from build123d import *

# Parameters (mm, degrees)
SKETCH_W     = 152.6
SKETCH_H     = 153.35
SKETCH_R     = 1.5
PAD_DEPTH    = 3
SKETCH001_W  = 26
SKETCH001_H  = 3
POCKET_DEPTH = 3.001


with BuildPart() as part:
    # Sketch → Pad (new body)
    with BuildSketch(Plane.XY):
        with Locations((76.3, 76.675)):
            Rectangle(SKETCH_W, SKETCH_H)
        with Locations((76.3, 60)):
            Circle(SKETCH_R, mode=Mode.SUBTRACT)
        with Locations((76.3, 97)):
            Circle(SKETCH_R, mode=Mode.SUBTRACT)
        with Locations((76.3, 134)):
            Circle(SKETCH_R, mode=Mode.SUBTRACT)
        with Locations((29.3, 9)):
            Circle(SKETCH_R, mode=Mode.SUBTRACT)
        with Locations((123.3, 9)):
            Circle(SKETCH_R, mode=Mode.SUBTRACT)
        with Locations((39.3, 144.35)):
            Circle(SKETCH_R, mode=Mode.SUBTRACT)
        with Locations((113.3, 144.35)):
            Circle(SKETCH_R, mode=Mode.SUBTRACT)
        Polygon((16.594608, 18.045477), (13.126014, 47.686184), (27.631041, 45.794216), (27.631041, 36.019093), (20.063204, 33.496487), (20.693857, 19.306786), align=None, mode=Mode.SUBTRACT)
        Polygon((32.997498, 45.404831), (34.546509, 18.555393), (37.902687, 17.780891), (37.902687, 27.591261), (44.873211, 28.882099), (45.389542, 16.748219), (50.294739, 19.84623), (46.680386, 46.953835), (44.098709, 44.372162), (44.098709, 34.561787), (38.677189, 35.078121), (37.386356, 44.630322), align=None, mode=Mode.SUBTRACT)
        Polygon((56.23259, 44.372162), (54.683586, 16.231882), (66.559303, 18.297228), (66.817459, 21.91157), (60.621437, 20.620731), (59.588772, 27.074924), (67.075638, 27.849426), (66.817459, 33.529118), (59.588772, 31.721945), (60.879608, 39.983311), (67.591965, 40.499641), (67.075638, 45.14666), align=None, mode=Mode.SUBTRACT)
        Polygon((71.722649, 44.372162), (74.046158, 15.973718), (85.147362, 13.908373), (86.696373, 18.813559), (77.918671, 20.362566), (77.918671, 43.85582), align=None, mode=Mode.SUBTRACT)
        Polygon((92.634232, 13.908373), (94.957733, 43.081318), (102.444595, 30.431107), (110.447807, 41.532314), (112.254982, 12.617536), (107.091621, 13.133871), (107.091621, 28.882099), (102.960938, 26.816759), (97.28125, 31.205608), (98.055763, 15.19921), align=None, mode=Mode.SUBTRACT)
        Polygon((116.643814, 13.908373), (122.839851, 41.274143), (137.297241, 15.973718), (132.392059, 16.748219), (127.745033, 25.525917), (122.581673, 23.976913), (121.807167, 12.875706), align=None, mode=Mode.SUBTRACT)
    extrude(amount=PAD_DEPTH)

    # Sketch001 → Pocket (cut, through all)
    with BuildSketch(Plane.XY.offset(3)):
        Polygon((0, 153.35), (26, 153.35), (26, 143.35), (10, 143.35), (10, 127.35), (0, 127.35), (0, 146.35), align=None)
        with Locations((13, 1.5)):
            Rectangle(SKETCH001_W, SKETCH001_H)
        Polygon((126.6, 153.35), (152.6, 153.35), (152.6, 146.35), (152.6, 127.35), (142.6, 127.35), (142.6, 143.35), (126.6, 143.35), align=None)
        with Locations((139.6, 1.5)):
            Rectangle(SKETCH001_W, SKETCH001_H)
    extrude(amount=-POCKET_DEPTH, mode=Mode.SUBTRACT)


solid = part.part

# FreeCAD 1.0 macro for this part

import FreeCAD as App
import Part
import Sketcher
from FreeCAD import Vector
Q = App.Units.Quantity

doc = App.newDocument("Part")
params = doc.addObject("Spreadsheet::Sheet", "Params")
for row, (alias, value) in enumerate([
    ("sketch1_diameter", "3 mm"),
    ("sketch1_diameter2", "3 mm"),
    ("sketch1_diameter3", "3 mm"),
    ("sketch1_diameter4", "3 mm"),
    ("sketch1_diameter5", "3 mm"),
    ("pad1_length", "3 mm"),
    ("sketch2_width", "26 mm"),
    ("sketch2_width2", "10 mm"),
    ("sketch2_height", "3 mm"),
], start=1):
    params.set(f"A{row}", alias)
    params.set(f"B{row}", "=" + value)
    params.setAlias(f"B{row}", alias)

body = doc.addObject("PartDesign::Body", "Body")

# Sketch on XY plane
sketch1 = body.newObject("Sketcher::SketchObject", "Sketch")
sketch1.AttachmentSupport = (doc.getObject("XY_Plane"), [""])
sketch1.MapMode = "FlatFace"
sketch1.addGeometry([
    Part.LineSegment(Vector(0, 153.35, 0), Vector(0, 0, 0)),  # 0
    Part.LineSegment(Vector(0, 0, 0), Vector(152.6, 0, 0)),  # 1
    Part.LineSegment(Vector(152.6, 0, 0), Vector(152.6, 153.35, 0)),  # 2
    Part.LineSegment(Vector(152.6, 153.35, 0), Vector(0, 153.35, 0)),  # 3
    Part.Circle(Vector(29.3, 9, 0), Vector(0, 0, 1), 1.5),  # 4
    Part.LineSegment(Vector(20.693857, 19.306786, 0), Vector(16.594608, 18.045477, 0)),  # 5
    Part.LineSegment(Vector(16.594608, 18.045477, 0), Vector(13.126014, 47.686184, 0)),  # 6
    Part.LineSegment(Vector(13.126014, 47.686184, 0), Vector(27.631041, 45.794216, 0)),  # 7
    Part.LineSegment(Vector(27.631041, 45.794216, 0), Vector(27.631041, 36.019093, 0)),  # 8
    Part.LineSegment(Vector(27.631041, 36.019093, 0), Vector(20.063204, 33.496487, 0)),  # 9
    Part.LineSegment(Vector(20.063204, 33.496487, 0), Vector(20.693857, 19.306786, 0)),  # 10
    Part.LineSegment(Vector(34.546509, 18.555393, 0), Vector(32.997498, 45.404831, 0)),  # 11
    Part.LineSegment(Vector(32.997498, 45.404831, 0), Vector(37.386356, 44.630322, 0)),  # 12
    Part.LineSegment(Vector(37.386356, 44.630322, 0), Vector(38.677189, 35.078121, 0)),  # 13
    Part.LineSegment(Vector(38.677189, 35.078121, 0), Vector(44.098709, 34.561787, 0)),  # 14
    Part.LineSegment(Vector(44.098709, 34.561787, 0), Vector(44.098709, 44.372162, 0)),  # 15
    Part.LineSegment(Vector(44.098709, 44.372162, 0), Vector(46.680386, 46.953835, 0)),  # 16
    Part.LineSegment(Vector(46.680386, 46.953835, 0), Vector(50.294739, 19.84623, 0)),  # 17
    Part.LineSegment(Vector(50.294739, 19.84623, 0), Vector(45.389542, 16.748219, 0)),  # 18
    Part.LineSegment(Vector(45.389542, 16.748219, 0), Vector(44.873211, 28.882099, 0)),  # 19
    Part.LineSegment(Vector(44.873211, 28.882099, 0), Vector(37.902687, 27.591261, 0)),  # 20
    Part.LineSegment(Vector(37.902687, 27.591261, 0), Vector(37.902687, 17.780891, 0)),  # 21
    Part.LineSegment(Vector(37.902687, 17.780891, 0), Vector(34.546509, 18.555393, 0)),  # 22
    Part.LineSegment(Vector(54.683586, 16.231882, 0), Vector(56.23259, 44.372162, 0)),  # 23
    Part.LineSegment(Vector(56.23259, 44.372162, 0), Vector(67.075638, 45.14666, 0)),  # 24
    Part.LineSegment(Vector(67.075638, 45.14666, 0), Vector(67.591965, 40.499641, 0)),  # 25
    Part.LineSegment(Vector(67.591965, 40.499641, 0), Vector(60.879608, 39.983311, 0)),  # 26
    Part.LineSegment(Vector(60.879608, 39.983311, 0), Vector(59.588772, 31.721945, 0)),  # 27
    Part.LineSegment(Vector(59.588772, 31.721945, 0), Vector(66.817459, 33.529118, 0)),  # 28
    Part.LineSegment(Vector(66.817459, 33.529118, 0), Vector(67.075638, 27.849426, 0)),  # 29
    Part.LineSegment(Vector(67.075638, 27.849426, 0), Vector(59.588772, 27.074924, 0)),  # 30
    Part.LineSegment(Vector(59.588772, 27.074924, 0), Vector(60.621437, 20.620731, 0)),  # 31
    Part.LineSegment(Vector(60.621437, 20.620731, 0), Vector(66.817459, 21.91157, 0)),  # 32
    Part.LineSegment(Vector(66.817459, 21.91157, 0), Vector(66.559303, 18.297228, 0)),  # 33
    Part.LineSegment(Vector(66.559303, 18.297228, 0), Vector(54.683586, 16.231882, 0)),  # 34
    Part.LineSegment(Vector(74.046158, 15.973718, 0), Vector(71.722649, 44.372162, 0)),  # 35
    Part.LineSegment(Vector(71.722649, 44.372162, 0), Vector(77.918671, 43.85582, 0)),  # 36
    Part.LineSegment(Vector(77.918671, 43.85582, 0), Vector(77.918671, 20.362566, 0)),  # 37
    Part.LineSegment(Vector(77.918671, 20.362566, 0), Vector(86.696373, 18.813559, 0)),  # 38
    Part.LineSegment(Vector(86.696373, 18.813559, 0), Vector(85.147362, 13.908373, 0)),  # 39
    Part.LineSegment(Vector(85.147362, 13.908373, 0), Vector(74.046158, 15.973718, 0)),  # 40
    Part.LineSegment(Vector(98.055763, 15.19921, 0), Vector(92.634232, 13.908373, 0)),  # 41
    Part.LineSegment(Vector(92.634232, 13.908373, 0), Vector(94.957733, 43.081318, 0)),  # 42
    Part.LineSegment(Vector(94.957733, 43.081318, 0), Vector(102.444595, 30.431107, 0)),  # 43
    Part.LineSegment(Vector(102.444595, 30.431107, 0), Vector(110.447807, 41.532314, 0)),  # 44
    Part.LineSegment(Vector(110.447807, 41.532314, 0), Vector(112.254982, 12.617536, 0)),  # 45
    Part.LineSegment(Vector(112.254982, 12.617536, 0), Vector(107.091621, 13.133871, 0)),  # 46
    Part.LineSegment(Vector(107.091621, 13.133871, 0), Vector(107.091621, 28.882099, 0)),  # 47
    Part.LineSegment(Vector(107.091621, 28.882099, 0), Vector(102.960938, 26.816759, 0)),  # 48
    Part.LineSegment(Vector(102.960938, 26.816759, 0), Vector(97.28125, 31.205608, 0)),  # 49
    Part.LineSegment(Vector(97.28125, 31.205608, 0), Vector(98.055763, 15.19921, 0)),  # 50
    Part.Circle(Vector(123.3, 9, 0), Vector(0, 0, 1), 1.5),  # 51
    Part.LineSegment(Vector(121.807167, 12.875706, 0), Vector(116.643814, 13.908373, 0)),  # 52
    Part.LineSegment(Vector(116.643814, 13.908373, 0), Vector(122.839851, 41.274143, 0)),  # 53
    Part.LineSegment(Vector(122.839851, 41.274143, 0), Vector(137.297241, 15.973718, 0)),  # 54
    Part.LineSegment(Vector(137.297241, 15.973718, 0), Vector(132.392059, 16.748219, 0)),  # 55
    Part.LineSegment(Vector(132.392059, 16.748219, 0), Vector(127.745033, 25.525917, 0)),  # 56
    Part.LineSegment(Vector(127.745033, 25.525917, 0), Vector(122.581673, 23.976913, 0)),  # 57
    Part.LineSegment(Vector(122.581673, 23.976913, 0), Vector(121.807167, 12.875706, 0)),  # 58
    Part.Circle(Vector(76.3, 60, 0), Vector(0, 0, 1), 1.5),  # 59
    Part.Circle(Vector(39.3, 144.35, 0), Vector(0, 0, 1), 1.5),  # 60
    Part.Circle(Vector(76.3, 97, 0), Vector(0, 0, 1), 1.5),  # 61
    Part.Circle(Vector(76.3, 134, 0), Vector(0, 0, 1), 1.5),  # 62
    Part.Circle(Vector(113.3, 144.35, 0), Vector(0, 0, 1), 1.5),  # 63
], False)
sketch1.addConstraint([
    Sketcher.Constraint("Coincident", 0, 2, 1, 1),
    Sketcher.Constraint("Coincident", 1, 2, 2, 1),
    Sketcher.Constraint("Coincident", 2, 2, 3, 1),
    Sketcher.Constraint("Coincident", 3, 2, 0, 1),
    Sketcher.Constraint("Coincident", 5, 2, 6, 1),
    Sketcher.Constraint("Coincident", 6, 2, 7, 1),
    Sketcher.Constraint("Coincident", 7, 2, 8, 1),
    Sketcher.Constraint("Coincident", 8, 2, 9, 1),
    Sketcher.Constraint("Coincident", 9, 2, 10, 1),
    Sketcher.Constraint("Coincident", 10, 2, 5, 1),
    Sketcher.Constraint("Coincident", 11, 2, 12, 1),
    Sketcher.Constraint("Coincident", 12, 2, 13, 1),
    Sketcher.Constraint("Coincident", 13, 2, 14, 1),
    Sketcher.Constraint("Coincident", 14, 2, 15, 1),
    Sketcher.Constraint("Coincident", 15, 2, 16, 1),
    Sketcher.Constraint("Coincident", 16, 2, 17, 1),
    Sketcher.Constraint("Coincident", 17, 2, 18, 1),
    Sketcher.Constraint("Coincident", 18, 2, 19, 1),
    Sketcher.Constraint("Coincident", 19, 2, 20, 1),
    Sketcher.Constraint("Coincident", 20, 2, 21, 1),
    Sketcher.Constraint("Coincident", 21, 2, 22, 1),
    Sketcher.Constraint("Coincident", 22, 2, 11, 1),
    Sketcher.Constraint("Coincident", 23, 2, 24, 1),
    Sketcher.Constraint("Coincident", 24, 2, 25, 1),
    Sketcher.Constraint("Coincident", 25, 2, 26, 1),
    Sketcher.Constraint("Coincident", 26, 2, 27, 1),
    Sketcher.Constraint("Coincident", 27, 2, 28, 1),
    Sketcher.Constraint("Coincident", 28, 2, 29, 1),
    Sketcher.Constraint("Coincident", 29, 2, 30, 1),
    Sketcher.Constraint("Coincident", 30, 2, 31, 1),
    Sketcher.Constraint("Coincident", 31, 2, 32, 1),
    Sketcher.Constraint("Coincident", 32, 2, 33, 1),
    Sketcher.Constraint("Coincident", 33, 2, 34, 1),
    Sketcher.Constraint("Coincident", 34, 2, 23, 1),
    Sketcher.Constraint("Coincident", 35, 2, 36, 1),
    Sketcher.Constraint("Coincident", 36, 2, 37, 1),
    Sketcher.Constraint("Coincident", 37, 2, 38, 1),
    Sketcher.Constraint("Coincident", 38, 2, 39, 1),
    Sketcher.Constraint("Coincident", 39, 2, 40, 1),
    Sketcher.Constraint("Coincident", 40, 2, 35, 1),
    Sketcher.Constraint("Coincident", 41, 2, 42, 1),
    Sketcher.Constraint("Coincident", 42, 2, 43, 1),
    Sketcher.Constraint("Coincident", 43, 2, 44, 1),
    Sketcher.Constraint("Coincident", 44, 2, 45, 1),
    Sketcher.Constraint("Coincident", 45, 2, 46, 1),
    Sketcher.Constraint("Coincident", 46, 2, 47, 1),
    Sketcher.Constraint("Coincident", 47, 2, 48, 1),
    Sketcher.Constraint("Coincident", 48, 2, 49, 1),
    Sketcher.Constraint("Coincident", 49, 2, 50, 1),
    Sketcher.Constraint("Coincident", 50, 2, 41, 1),
    Sketcher.Constraint("Coincident", 52, 2, 53, 1),
    Sketcher.Constraint("Coincident", 53, 2, 54, 1),
    Sketcher.Constraint("Coincident", 54, 2, 55, 1),
    Sketcher.Constraint("Coincident", 55, 2, 56, 1),
    Sketcher.Constraint("Coincident", 56, 2, 57, 1),
    Sketcher.Constraint("Coincident", 57, 2, 58, 1),
    Sketcher.Constraint("Coincident", 58, 2, 52, 1),
    Sketcher.Constraint("Vertical", 0),
    Sketcher.Constraint("Horizontal", 1),
    Sketcher.Constraint("Vertical", 2),
    Sketcher.Constraint("Horizontal", 3),
    Sketcher.Constraint("Vertical", 8),
    Sketcher.Constraint("Vertical", 15),
    Sketcher.Constraint("Vertical", 21),
    Sketcher.Constraint("Vertical", 37),
    Sketcher.Constraint("Vertical", 47),
    Sketcher.Constraint("Coincident", 0, 2, -1, 1),
    Sketcher.Constraint("Diameter", 4, Q("3 mm")),
    Sketcher.Constraint("Diameter", 51, Q("3 mm")),
    Sketcher.Constraint("Diameter", 59, Q("3 mm")),
    Sketcher.Constraint("Diameter", 60, Q("3 mm")),
    Sketcher.Constraint("Diameter", 61, Q("3 mm")),
    Sketcher.Constraint("Diameter", 62, Q("3 mm")),
    Sketcher.Constraint("Diameter", 63, Q("3 mm")),
    Sketcher.Constraint("DistanceX", 1, 1, 1, 2, Q("152.6 mm")),
    Sketcher.Constraint("DistanceY", -1, 1, 4, 3, Q("9 mm")),
    Sketcher.Constraint("DistanceY", -1, 1, 51, 3, Q("9 mm")),
    Sketcher.Constraint("DistanceY", -1, 1, 59, 3, Q("60 mm")),
    Sketcher.Constraint("DistanceY", -1, 1, 61, 3, Q("97 mm")),
    Sketcher.Constraint("DistanceY", -1, 1, 62, 3, Q("134 mm")),
    Sketcher.Constraint("DistanceY", 0, 2, 0, 1, Q("153.35 mm")),
    Sketcher.Constraint("DistanceX", -1, 1, 4, 3, Q("29.3 mm")),
    Sketcher.Constraint("DistanceX", -1, 1, 51, 3, Q("123.3 mm")),
    Sketcher.Constraint("DistanceX", -1, 1, 59, 3, Q("76.3 mm")),
    Sketcher.Constraint("DistanceX", -1, 1, 60, 3, Q("39.3 mm")),
    Sketcher.Constraint("DistanceX", -1, 1, 61, 3, Q("76.3 mm")),
    Sketcher.Constraint("DistanceX", -1, 1, 62, 3, Q("76.3 mm")),
    Sketcher.Constraint("DistanceX", -1, 1, 63, 3, Q("113.3 mm")),
    Sketcher.Constraint("DistanceY", -1, 1, 60, 3, Q("144.35 mm")),
    Sketcher.Constraint("DistanceY", -1, 1, 63, 3, Q("144.35 mm")),
    Sketcher.Constraint("Distance", 9, Q("7.977199 mm")),
    Sketcher.Constraint("Distance", 17, Q("27.347501 mm")),
    Sketcher.Constraint("Distance", 36, Q("6.217499 mm")),
    Sketcher.Constraint("DistanceY", 21, 2, 21, 1, Q("9.81037 mm")),
    Sketcher.Constraint("DistanceY", 47, 1, 47, 2, Q("15.748228 mm")),
    Sketcher.Constraint("DistanceY", -1, 1, 19, 2, Q("28.882099 mm")),
    Sketcher.Constraint("DistanceY", -1, 1, 47, 2, Q("28.882099 mm")),
    Sketcher.Constraint("Distance", 5, Q("4.288909 mm")),
    Sketcher.Constraint("Distance", 10, Q("14.203709 mm")),
    Sketcher.Constraint("Distance", 14, Q("5.446052 mm")),
    Sketcher.Constraint("Distance", 16, Q("3.65104 mm")),
    Sketcher.Constraint("Distance", 19, Q("12.144861 mm")),
    Sketcher.Constraint("Distance", 20, Q("7.089039 mm")),
    Sketcher.Constraint("Distance", 23, Q("28.182881 mm")),
    Sketcher.Constraint("Distance", 28, Q("7.45116 mm")),
    Sketcher.Constraint("Distance", 30, Q("7.52682 mm")),
    Sketcher.Constraint("Distance", 33, Q("3.62355 mm")),
    Sketcher.Constraint("Distance", 35, Q("28.493338 mm")),
    Sketcher.Constraint("Distance", 38, Q("8.913331 mm")),
    Sketcher.Constraint("Distance", 43, Q("14.699692 mm")),
    Sketcher.Constraint("Distance", 55, Q("4.96595 mm")),
    Sketcher.Constraint("Distance", 56, Q("9.93191 mm")),
    Sketcher.Constraint("Distance", 58, Q("11.128192 mm")),
    Sketcher.Constraint("DistanceY", 8, 2, 8, 1, Q("9.775123 mm")),
    Sketcher.Constraint("DistanceY", 15, 1, 15, 2, Q("9.810375 mm")),
    Sketcher.Constraint("DistanceY", 37, 2, 37, 1, Q("23.493254 mm")),
    Sketcher.Constraint("DistanceX", -1, 1, 5, 2, Q("16.594608 mm")),
    Sketcher.Constraint("DistanceX", -1, 1, 7, 2, Q("27.631041 mm")),
    Sketcher.Constraint("DistanceY", -1, 1, 11, 2, Q("45.404831 mm")),
    Sketcher.Constraint("DistanceX", -1, 1, 13, 2, Q("38.677189 mm")),
    Sketcher.Constraint("DistanceY", -1, 1, 13, 2, Q("35.078121 mm")),
    Sketcher.Constraint("DistanceX", -1, 1, 14, 2, Q("44.098709 mm")),
    Sketcher.Constraint("DistanceX", -1, 1, 17, 2, Q("50.294739 mm")),
    Sketcher.Constraint("DistanceY", -1, 1, 17, 2, Q("19.84623 mm")),
    Sketcher.Constraint("DistanceY", -1, 1, 18, 2, Q("16.748219 mm")),
    Sketcher.Constraint("DistanceX", -1, 1, 19, 2, Q("44.873211 mm")),
    Sketcher.Constraint("DistanceY", -1, 1, 20, 2, Q("27.591261 mm")),
    Sketcher.Constraint("DistanceX", -1, 1, 22, 2, Q("34.546509 mm")),
    Sketcher.Constraint("DistanceX", -1, 1, 23, 2, Q("56.23259 mm")),
    Sketcher.Constraint("DistanceY", -1, 1, 24, 2, Q("45.14666 mm")),
    Sketcher.Constraint("DistanceY", -1, 1, 25, 2, Q("40.499641 mm")),
    Sketcher.Constraint("DistanceY", -1, 1, 26, 2, Q("39.983311 mm")),
    Sketcher.Constraint("DistanceX", -1, 1, 28, 2, Q("66.817459 mm")),
    Sketcher.Constraint("DistanceY", -1, 1, 31, 2, Q("20.620731 mm")),
    Sketcher.Constraint("DistanceX", -1, 1, 32, 2, Q("66.817459 mm")),
    Sketcher.Constraint("DistanceY", -1, 1, 32, 2, Q("21.91157 mm")),
    Sketcher.Constraint("DistanceY", -1, 1, 33, 2, Q("18.297228 mm")),
    Sketcher.Constraint("DistanceY", -1, 1, 34, 2, Q("16.231882 mm")),
    Sketcher.Constraint("DistanceX", -1, 1, 35, 2, Q("71.722649 mm")),
    Sketcher.Constraint("DistanceX", -1, 1, 36, 2, Q("77.918671 mm")),
    Sketcher.Constraint("DistanceY", -1, 1, 36, 2, Q("43.85582 mm")),
    Sketcher.Constraint("DistanceY", -1, 1, 38, 2, Q("18.813559 mm")),
    Sketcher.Constraint("DistanceX", -1, 1, 39, 2, Q("85.147362 mm")),
    Sketcher.Constraint("DistanceX", -1, 1, 40, 2, Q("74.046158 mm")),
    Sketcher.Constraint("DistanceX", -1, 1, 41, 2, Q("92.634232 mm")),
    Sketcher.Constraint("DistanceY", -1, 1, 42, 2, Q("43.081318 mm")),
    Sketcher.Constraint("DistanceX", -1, 1, 45, 2, Q("112.254982 mm")),
    Sketcher.Constraint("DistanceX", -1, 1, 46, 2, Q("107.091621 mm")),
    Sketcher.Constraint("DistanceX", -1, 1, 48, 2, Q("102.960938 mm")),
    Sketcher.Constraint("DistanceY", -1, 1, 48, 2, Q("26.816759 mm")),
    Sketcher.Constraint("DistanceX", -1, 1, 49, 2, Q("97.28125 mm")),
    Sketcher.Constraint("DistanceY", -1, 1, 49, 2, Q("31.205608 mm")),
    Sketcher.Constraint("DistanceY", -1, 1, 50, 2, Q("15.19921 mm")),
    Sketcher.Constraint("DistanceX", -1, 1, 53, 2, Q("122.839851 mm")),
    Sketcher.Constraint("DistanceX", -1, 1, 54, 2, Q("137.297241 mm")),
    Sketcher.Constraint("DistanceX", -1, 1, 55, 2, Q("132.392059 mm")),
    Sketcher.Constraint("DistanceY", -1, 1, 55, 2, Q("16.748219 mm")),
    Sketcher.Constraint("Distance", 6, Q("29.842967 mm")),
    Sketcher.Constraint("Distance", 7, Q("14.627896 mm")),
    Sketcher.Constraint("Distance", 11, Q("26.894084 mm")),
    Sketcher.Constraint("Distance", 12, Q("4.456674 mm")),
    Sketcher.Constraint("Distance", 13, Q("9.639025 mm")),
    Sketcher.Constraint("Distance", 22, Q("3.444384 mm")),
    Sketcher.Constraint("Distance", 24, Q("10.870673 mm")),
    Sketcher.Constraint("Distance", 25, Q("4.675615 mm")),
    Sketcher.Constraint("Distance", 26, Q("6.732186 mm")),
    Sketcher.Constraint("Distance", 27, Q("8.361604 mm")),
    Sketcher.Constraint("Distance", 29, Q("5.685557 mm")),
    Sketcher.Constraint("Distance", 31, Q("6.536284 mm")),
    Sketcher.Constraint("Distance", 32, Q("6.329056 mm")),
    Sketcher.Constraint("Distance", 34, Q("12.053975 mm")),
    Sketcher.Constraint("Distance", 39, Q("5.143956 mm")),
    Sketcher.Constraint("Distance", 41, Q("5.573083 mm")),
    Sketcher.Constraint("Distance", 42, Q("29.265327 mm")),
    Sketcher.Constraint("Distance", 44, Q("13.685328 mm")),
    Sketcher.Constraint("Distance", 45, Q("28.971197 mm")),
    Sketcher.Constraint("Distance", 46, Q("5.189113 mm")),
    Sketcher.Constraint("Distance", 52, Q("5.265607 mm")),
    Sketcher.Constraint("Distance", 53, Q("28.058443 mm")),
    Sketcher.Constraint("Distance", 54, Q("29.139795 mm")),
    Sketcher.Constraint("Distance", 57, Q("5.390705 mm")),
    Sketcher.Constraint("DistanceY", -1, 1, 5, 2, Q("18.045477 mm")),
    Sketcher.Constraint("DistanceX", -1, 1, 6, 2, Q("13.126014 mm")),
    Sketcher.Constraint("DistanceX", -1, 1, 9, 2, Q("20.063204 mm")),
    Sketcher.Constraint("DistanceX", -1, 1, 27, 2, Q("59.588772 mm")),
    Sketcher.Constraint("DistanceX", -1, 1, 29, 2, Q("67.075638 mm")),
    Sketcher.Constraint("DistanceY", -1, 1, 41, 2, Q("13.908373 mm")),
    Sketcher.Constraint("DistanceX", -1, 1, 43, 2, Q("102.444595 mm")),
    Sketcher.Constraint("DistanceX", -1, 1, 52, 2, Q("116.643814 mm")),
    Sketcher.Constraint("DistanceX", -1, 1, 56, 2, Q("127.745033 mm")),
    Sketcher.Constraint("DistanceX", -1, 1, 57, 2, Q("122.581673 mm")),
])
sketch1.setExpression("Constraints[67]", "Params.sketch1_diameter")
sketch1.setExpression("Constraints[68]", "Params.sketch1_diameter2")
sketch1.setExpression("Constraints[69]", "Params.sketch1_diameter3")
sketch1.setExpression("Constraints[70]", "Params.sketch1_diameter4")
sketch1.setExpression("Constraints[71]", "Params.sketch1_diameter5")
pad1 = body.newObject("PartDesign::Pad", "Pad")
pad1.Profile = sketch1
pad1.setExpression("Length", "Params.pad1_length")

# Sketch on XY plane
sketch2 = body.newObject("Sketcher::SketchObject", "Sketch001")
sketch2.AttachmentSupport = (doc.getObject("XY_Plane"), [""])
sketch2.MapMode = "FlatFace"
sketch2.AttachmentOffset = App.Placement(Vector(0, 0, 3), App.Rotation())
sketch2.addGeometry([
    Part.LineSegment(Vector(26, 153.3, 0), Vector(0, 153.3, 0)),  # 0
    Part.LineSegment(Vector(0, 153.3, 0), Vector(0, 127.3, 0)),  # 1
    Part.LineSegment(Vector(0, 127.3, 0), Vector(10, 127.3, 0)),  # 2
    Part.LineSegment(Vector(10, 127.3, 0), Vector(10, 143.3, 0)),  # 3
    Part.LineSegment(Vector(10, 143.3, 0), Vector(26, 143.3, 0)),  # 4
    Part.LineSegment(Vector(26, 143.3, 0), Vector(26, 153.3, 0)),  # 5
    Part.LineSegment(Vector(0, 3, 0), Vector(0, 0, 0)),  # 6
    Part.LineSegment(Vector(0, 0, 0), Vector(26, 0, 0)),  # 7
    Part.LineSegment(Vector(26, 0, 0), Vector(26, 3, 0)),  # 8
    Part.LineSegment(Vector(26, 3, 0), Vector(0, 3, 0)),  # 9
    Part.LineSegment(Vector(152.6, 153.3, 0), Vector(126.6, 153.3, 0)),  # 10
    Part.LineSegment(Vector(126.6, 153.3, 0), Vector(126.6, 143.3, 0)),  # 11
    Part.LineSegment(Vector(126.6, 143.3, 0), Vector(142.6, 143.3, 0)),  # 12
    Part.LineSegment(Vector(142.6, 143.3, 0), Vector(142.6, 127.3, 0)),  # 13
    Part.LineSegment(Vector(142.6, 127.3, 0), Vector(152.6, 127.3, 0)),  # 14
    Part.LineSegment(Vector(152.6, 127.3, 0), Vector(152.6, 153.3, 0)),  # 15
    Part.LineSegment(Vector(126.6, 3, 0), Vector(126.6, 0, 0)),  # 16
    Part.LineSegment(Vector(126.6, 0, 0), Vector(152.6, 0, 0)),  # 17
    Part.LineSegment(Vector(152.6, 0, 0), Vector(152.6, 3, 0)),  # 18
    Part.LineSegment(Vector(152.6, 3, 0), Vector(126.6, 3, 0)),  # 19
], False)
sketch2.addConstraint([
    Sketcher.Constraint("Coincident", 0, 2, 1, 1),
    Sketcher.Constraint("Coincident", 1, 2, 2, 1),
    Sketcher.Constraint("Coincident", 2, 2, 3, 1),
    Sketcher.Constraint("Coincident", 3, 2, 4, 1),
    Sketcher.Constraint("Coincident", 4, 2, 5, 1),
    Sketcher.Constraint("Coincident", 5, 2, 0, 1),
    Sketcher.Constraint("Coincident", 6, 2, 7, 1),
    Sketcher.Constraint("Coincident", 7, 2, 8, 1),
    Sketcher.Constraint("Coincident", 8, 2, 9, 1),
    Sketcher.Constraint("Coincident", 9, 2, 6, 1),
    Sketcher.Constraint("Coincident", 10, 2, 11, 1),
    Sketcher.Constraint("Coincident", 11, 2, 12, 1),
    Sketcher.Constraint("Coincident", 12, 2, 13, 1),
    Sketcher.Constraint("Coincident", 13, 2, 14, 1),
    Sketcher.Constraint("Coincident", 14, 2, 15, 1),
    Sketcher.Constraint("Coincident", 15, 2, 10, 1),
    Sketcher.Constraint("Coincident", 16, 2, 17, 1),
    Sketcher.Constraint("Coincident", 17, 2, 18, 1),
    Sketcher.Constraint("Coincident", 18, 2, 19, 1),
    Sketcher.Constraint("Coincident", 19, 2, 16, 1),
    Sketcher.Constraint("Horizontal", 0),
    Sketcher.Constraint("Vertical", 1),
    Sketcher.Constraint("Horizontal", 2),
    Sketcher.Constraint("Vertical", 3),
    Sketcher.Constraint("Horizontal", 4),
    Sketcher.Constraint("Vertical", 5),
    Sketcher.Constraint("Vertical", 6),
    Sketcher.Constraint("Horizontal", 7),
    Sketcher.Constraint("Vertical", 8),
    Sketcher.Constraint("Horizontal", 9),
    Sketcher.Constraint("Horizontal", 10),
    Sketcher.Constraint("Vertical", 11),
    Sketcher.Constraint("Horizontal", 12),
    Sketcher.Constraint("Vertical", 13),
    Sketcher.Constraint("Horizontal", 14),
    Sketcher.Constraint("Vertical", 15),
    Sketcher.Constraint("Vertical", 16),
    Sketcher.Constraint("Horizontal", 17),
    Sketcher.Constraint("Vertical", 18),
    Sketcher.Constraint("Horizontal", 19),
    Sketcher.Constraint("Coincident", 6, 2, -1, 1),
    Sketcher.Constraint("PointOnObject", 0, 2, -2),
    Sketcher.Constraint("PointOnObject", 16, 2, -1),
    Sketcher.Constraint("Horizontal", 5, 2, 10, 2),
    Sketcher.Constraint("Horizontal", 4, 2, 11, 2),
    Sketcher.Constraint("Horizontal", 2, 2, 13, 2),
    Sketcher.Constraint("Horizontal", 9, 2, 18, 2),
    Sketcher.Constraint("Vertical", 5, 2, 7, 2),
    Sketcher.Constraint("Vertical", 11, 2, 16, 2),
    Sketcher.Constraint("Vertical", 15, 2, 17, 2),
    Sketcher.Constraint("Equal", 9, 10),
    Sketcher.Constraint("Equal", 4, 12),
    Sketcher.Constraint("Equal", 19, 1),
    Sketcher.Constraint("Equal", 12, 3),
    Sketcher.Constraint("DistanceX", 0, 2, 0, 1, Q("26 mm")),
    Sketcher.Constraint("DistanceX", 2, 1, 2, 2, Q("10 mm")),
    Sketcher.Constraint("DistanceY", 6, 2, 6, 1, Q("3 mm")),
    Sketcher.Constraint("DistanceX", -1, 1, 10, 2, Q("126.6 mm")),
    Sketcher.Constraint("DistanceY", -1, 1, 0, 2, Q("153.35 mm")),
])
sketch2.setExpression("Constraints[54]", "Params.sketch2_width")
sketch2.setExpression("Constraints[55]", "Params.sketch2_width2")
sketch2.setExpression("Constraints[56]", "Params.sketch2_height")
pocket1 = body.newObject("PartDesign::Pocket", "Pocket")
pocket1.Profile = sketch2
pocket1.Type = "ThroughAll"

doc.recompute()
